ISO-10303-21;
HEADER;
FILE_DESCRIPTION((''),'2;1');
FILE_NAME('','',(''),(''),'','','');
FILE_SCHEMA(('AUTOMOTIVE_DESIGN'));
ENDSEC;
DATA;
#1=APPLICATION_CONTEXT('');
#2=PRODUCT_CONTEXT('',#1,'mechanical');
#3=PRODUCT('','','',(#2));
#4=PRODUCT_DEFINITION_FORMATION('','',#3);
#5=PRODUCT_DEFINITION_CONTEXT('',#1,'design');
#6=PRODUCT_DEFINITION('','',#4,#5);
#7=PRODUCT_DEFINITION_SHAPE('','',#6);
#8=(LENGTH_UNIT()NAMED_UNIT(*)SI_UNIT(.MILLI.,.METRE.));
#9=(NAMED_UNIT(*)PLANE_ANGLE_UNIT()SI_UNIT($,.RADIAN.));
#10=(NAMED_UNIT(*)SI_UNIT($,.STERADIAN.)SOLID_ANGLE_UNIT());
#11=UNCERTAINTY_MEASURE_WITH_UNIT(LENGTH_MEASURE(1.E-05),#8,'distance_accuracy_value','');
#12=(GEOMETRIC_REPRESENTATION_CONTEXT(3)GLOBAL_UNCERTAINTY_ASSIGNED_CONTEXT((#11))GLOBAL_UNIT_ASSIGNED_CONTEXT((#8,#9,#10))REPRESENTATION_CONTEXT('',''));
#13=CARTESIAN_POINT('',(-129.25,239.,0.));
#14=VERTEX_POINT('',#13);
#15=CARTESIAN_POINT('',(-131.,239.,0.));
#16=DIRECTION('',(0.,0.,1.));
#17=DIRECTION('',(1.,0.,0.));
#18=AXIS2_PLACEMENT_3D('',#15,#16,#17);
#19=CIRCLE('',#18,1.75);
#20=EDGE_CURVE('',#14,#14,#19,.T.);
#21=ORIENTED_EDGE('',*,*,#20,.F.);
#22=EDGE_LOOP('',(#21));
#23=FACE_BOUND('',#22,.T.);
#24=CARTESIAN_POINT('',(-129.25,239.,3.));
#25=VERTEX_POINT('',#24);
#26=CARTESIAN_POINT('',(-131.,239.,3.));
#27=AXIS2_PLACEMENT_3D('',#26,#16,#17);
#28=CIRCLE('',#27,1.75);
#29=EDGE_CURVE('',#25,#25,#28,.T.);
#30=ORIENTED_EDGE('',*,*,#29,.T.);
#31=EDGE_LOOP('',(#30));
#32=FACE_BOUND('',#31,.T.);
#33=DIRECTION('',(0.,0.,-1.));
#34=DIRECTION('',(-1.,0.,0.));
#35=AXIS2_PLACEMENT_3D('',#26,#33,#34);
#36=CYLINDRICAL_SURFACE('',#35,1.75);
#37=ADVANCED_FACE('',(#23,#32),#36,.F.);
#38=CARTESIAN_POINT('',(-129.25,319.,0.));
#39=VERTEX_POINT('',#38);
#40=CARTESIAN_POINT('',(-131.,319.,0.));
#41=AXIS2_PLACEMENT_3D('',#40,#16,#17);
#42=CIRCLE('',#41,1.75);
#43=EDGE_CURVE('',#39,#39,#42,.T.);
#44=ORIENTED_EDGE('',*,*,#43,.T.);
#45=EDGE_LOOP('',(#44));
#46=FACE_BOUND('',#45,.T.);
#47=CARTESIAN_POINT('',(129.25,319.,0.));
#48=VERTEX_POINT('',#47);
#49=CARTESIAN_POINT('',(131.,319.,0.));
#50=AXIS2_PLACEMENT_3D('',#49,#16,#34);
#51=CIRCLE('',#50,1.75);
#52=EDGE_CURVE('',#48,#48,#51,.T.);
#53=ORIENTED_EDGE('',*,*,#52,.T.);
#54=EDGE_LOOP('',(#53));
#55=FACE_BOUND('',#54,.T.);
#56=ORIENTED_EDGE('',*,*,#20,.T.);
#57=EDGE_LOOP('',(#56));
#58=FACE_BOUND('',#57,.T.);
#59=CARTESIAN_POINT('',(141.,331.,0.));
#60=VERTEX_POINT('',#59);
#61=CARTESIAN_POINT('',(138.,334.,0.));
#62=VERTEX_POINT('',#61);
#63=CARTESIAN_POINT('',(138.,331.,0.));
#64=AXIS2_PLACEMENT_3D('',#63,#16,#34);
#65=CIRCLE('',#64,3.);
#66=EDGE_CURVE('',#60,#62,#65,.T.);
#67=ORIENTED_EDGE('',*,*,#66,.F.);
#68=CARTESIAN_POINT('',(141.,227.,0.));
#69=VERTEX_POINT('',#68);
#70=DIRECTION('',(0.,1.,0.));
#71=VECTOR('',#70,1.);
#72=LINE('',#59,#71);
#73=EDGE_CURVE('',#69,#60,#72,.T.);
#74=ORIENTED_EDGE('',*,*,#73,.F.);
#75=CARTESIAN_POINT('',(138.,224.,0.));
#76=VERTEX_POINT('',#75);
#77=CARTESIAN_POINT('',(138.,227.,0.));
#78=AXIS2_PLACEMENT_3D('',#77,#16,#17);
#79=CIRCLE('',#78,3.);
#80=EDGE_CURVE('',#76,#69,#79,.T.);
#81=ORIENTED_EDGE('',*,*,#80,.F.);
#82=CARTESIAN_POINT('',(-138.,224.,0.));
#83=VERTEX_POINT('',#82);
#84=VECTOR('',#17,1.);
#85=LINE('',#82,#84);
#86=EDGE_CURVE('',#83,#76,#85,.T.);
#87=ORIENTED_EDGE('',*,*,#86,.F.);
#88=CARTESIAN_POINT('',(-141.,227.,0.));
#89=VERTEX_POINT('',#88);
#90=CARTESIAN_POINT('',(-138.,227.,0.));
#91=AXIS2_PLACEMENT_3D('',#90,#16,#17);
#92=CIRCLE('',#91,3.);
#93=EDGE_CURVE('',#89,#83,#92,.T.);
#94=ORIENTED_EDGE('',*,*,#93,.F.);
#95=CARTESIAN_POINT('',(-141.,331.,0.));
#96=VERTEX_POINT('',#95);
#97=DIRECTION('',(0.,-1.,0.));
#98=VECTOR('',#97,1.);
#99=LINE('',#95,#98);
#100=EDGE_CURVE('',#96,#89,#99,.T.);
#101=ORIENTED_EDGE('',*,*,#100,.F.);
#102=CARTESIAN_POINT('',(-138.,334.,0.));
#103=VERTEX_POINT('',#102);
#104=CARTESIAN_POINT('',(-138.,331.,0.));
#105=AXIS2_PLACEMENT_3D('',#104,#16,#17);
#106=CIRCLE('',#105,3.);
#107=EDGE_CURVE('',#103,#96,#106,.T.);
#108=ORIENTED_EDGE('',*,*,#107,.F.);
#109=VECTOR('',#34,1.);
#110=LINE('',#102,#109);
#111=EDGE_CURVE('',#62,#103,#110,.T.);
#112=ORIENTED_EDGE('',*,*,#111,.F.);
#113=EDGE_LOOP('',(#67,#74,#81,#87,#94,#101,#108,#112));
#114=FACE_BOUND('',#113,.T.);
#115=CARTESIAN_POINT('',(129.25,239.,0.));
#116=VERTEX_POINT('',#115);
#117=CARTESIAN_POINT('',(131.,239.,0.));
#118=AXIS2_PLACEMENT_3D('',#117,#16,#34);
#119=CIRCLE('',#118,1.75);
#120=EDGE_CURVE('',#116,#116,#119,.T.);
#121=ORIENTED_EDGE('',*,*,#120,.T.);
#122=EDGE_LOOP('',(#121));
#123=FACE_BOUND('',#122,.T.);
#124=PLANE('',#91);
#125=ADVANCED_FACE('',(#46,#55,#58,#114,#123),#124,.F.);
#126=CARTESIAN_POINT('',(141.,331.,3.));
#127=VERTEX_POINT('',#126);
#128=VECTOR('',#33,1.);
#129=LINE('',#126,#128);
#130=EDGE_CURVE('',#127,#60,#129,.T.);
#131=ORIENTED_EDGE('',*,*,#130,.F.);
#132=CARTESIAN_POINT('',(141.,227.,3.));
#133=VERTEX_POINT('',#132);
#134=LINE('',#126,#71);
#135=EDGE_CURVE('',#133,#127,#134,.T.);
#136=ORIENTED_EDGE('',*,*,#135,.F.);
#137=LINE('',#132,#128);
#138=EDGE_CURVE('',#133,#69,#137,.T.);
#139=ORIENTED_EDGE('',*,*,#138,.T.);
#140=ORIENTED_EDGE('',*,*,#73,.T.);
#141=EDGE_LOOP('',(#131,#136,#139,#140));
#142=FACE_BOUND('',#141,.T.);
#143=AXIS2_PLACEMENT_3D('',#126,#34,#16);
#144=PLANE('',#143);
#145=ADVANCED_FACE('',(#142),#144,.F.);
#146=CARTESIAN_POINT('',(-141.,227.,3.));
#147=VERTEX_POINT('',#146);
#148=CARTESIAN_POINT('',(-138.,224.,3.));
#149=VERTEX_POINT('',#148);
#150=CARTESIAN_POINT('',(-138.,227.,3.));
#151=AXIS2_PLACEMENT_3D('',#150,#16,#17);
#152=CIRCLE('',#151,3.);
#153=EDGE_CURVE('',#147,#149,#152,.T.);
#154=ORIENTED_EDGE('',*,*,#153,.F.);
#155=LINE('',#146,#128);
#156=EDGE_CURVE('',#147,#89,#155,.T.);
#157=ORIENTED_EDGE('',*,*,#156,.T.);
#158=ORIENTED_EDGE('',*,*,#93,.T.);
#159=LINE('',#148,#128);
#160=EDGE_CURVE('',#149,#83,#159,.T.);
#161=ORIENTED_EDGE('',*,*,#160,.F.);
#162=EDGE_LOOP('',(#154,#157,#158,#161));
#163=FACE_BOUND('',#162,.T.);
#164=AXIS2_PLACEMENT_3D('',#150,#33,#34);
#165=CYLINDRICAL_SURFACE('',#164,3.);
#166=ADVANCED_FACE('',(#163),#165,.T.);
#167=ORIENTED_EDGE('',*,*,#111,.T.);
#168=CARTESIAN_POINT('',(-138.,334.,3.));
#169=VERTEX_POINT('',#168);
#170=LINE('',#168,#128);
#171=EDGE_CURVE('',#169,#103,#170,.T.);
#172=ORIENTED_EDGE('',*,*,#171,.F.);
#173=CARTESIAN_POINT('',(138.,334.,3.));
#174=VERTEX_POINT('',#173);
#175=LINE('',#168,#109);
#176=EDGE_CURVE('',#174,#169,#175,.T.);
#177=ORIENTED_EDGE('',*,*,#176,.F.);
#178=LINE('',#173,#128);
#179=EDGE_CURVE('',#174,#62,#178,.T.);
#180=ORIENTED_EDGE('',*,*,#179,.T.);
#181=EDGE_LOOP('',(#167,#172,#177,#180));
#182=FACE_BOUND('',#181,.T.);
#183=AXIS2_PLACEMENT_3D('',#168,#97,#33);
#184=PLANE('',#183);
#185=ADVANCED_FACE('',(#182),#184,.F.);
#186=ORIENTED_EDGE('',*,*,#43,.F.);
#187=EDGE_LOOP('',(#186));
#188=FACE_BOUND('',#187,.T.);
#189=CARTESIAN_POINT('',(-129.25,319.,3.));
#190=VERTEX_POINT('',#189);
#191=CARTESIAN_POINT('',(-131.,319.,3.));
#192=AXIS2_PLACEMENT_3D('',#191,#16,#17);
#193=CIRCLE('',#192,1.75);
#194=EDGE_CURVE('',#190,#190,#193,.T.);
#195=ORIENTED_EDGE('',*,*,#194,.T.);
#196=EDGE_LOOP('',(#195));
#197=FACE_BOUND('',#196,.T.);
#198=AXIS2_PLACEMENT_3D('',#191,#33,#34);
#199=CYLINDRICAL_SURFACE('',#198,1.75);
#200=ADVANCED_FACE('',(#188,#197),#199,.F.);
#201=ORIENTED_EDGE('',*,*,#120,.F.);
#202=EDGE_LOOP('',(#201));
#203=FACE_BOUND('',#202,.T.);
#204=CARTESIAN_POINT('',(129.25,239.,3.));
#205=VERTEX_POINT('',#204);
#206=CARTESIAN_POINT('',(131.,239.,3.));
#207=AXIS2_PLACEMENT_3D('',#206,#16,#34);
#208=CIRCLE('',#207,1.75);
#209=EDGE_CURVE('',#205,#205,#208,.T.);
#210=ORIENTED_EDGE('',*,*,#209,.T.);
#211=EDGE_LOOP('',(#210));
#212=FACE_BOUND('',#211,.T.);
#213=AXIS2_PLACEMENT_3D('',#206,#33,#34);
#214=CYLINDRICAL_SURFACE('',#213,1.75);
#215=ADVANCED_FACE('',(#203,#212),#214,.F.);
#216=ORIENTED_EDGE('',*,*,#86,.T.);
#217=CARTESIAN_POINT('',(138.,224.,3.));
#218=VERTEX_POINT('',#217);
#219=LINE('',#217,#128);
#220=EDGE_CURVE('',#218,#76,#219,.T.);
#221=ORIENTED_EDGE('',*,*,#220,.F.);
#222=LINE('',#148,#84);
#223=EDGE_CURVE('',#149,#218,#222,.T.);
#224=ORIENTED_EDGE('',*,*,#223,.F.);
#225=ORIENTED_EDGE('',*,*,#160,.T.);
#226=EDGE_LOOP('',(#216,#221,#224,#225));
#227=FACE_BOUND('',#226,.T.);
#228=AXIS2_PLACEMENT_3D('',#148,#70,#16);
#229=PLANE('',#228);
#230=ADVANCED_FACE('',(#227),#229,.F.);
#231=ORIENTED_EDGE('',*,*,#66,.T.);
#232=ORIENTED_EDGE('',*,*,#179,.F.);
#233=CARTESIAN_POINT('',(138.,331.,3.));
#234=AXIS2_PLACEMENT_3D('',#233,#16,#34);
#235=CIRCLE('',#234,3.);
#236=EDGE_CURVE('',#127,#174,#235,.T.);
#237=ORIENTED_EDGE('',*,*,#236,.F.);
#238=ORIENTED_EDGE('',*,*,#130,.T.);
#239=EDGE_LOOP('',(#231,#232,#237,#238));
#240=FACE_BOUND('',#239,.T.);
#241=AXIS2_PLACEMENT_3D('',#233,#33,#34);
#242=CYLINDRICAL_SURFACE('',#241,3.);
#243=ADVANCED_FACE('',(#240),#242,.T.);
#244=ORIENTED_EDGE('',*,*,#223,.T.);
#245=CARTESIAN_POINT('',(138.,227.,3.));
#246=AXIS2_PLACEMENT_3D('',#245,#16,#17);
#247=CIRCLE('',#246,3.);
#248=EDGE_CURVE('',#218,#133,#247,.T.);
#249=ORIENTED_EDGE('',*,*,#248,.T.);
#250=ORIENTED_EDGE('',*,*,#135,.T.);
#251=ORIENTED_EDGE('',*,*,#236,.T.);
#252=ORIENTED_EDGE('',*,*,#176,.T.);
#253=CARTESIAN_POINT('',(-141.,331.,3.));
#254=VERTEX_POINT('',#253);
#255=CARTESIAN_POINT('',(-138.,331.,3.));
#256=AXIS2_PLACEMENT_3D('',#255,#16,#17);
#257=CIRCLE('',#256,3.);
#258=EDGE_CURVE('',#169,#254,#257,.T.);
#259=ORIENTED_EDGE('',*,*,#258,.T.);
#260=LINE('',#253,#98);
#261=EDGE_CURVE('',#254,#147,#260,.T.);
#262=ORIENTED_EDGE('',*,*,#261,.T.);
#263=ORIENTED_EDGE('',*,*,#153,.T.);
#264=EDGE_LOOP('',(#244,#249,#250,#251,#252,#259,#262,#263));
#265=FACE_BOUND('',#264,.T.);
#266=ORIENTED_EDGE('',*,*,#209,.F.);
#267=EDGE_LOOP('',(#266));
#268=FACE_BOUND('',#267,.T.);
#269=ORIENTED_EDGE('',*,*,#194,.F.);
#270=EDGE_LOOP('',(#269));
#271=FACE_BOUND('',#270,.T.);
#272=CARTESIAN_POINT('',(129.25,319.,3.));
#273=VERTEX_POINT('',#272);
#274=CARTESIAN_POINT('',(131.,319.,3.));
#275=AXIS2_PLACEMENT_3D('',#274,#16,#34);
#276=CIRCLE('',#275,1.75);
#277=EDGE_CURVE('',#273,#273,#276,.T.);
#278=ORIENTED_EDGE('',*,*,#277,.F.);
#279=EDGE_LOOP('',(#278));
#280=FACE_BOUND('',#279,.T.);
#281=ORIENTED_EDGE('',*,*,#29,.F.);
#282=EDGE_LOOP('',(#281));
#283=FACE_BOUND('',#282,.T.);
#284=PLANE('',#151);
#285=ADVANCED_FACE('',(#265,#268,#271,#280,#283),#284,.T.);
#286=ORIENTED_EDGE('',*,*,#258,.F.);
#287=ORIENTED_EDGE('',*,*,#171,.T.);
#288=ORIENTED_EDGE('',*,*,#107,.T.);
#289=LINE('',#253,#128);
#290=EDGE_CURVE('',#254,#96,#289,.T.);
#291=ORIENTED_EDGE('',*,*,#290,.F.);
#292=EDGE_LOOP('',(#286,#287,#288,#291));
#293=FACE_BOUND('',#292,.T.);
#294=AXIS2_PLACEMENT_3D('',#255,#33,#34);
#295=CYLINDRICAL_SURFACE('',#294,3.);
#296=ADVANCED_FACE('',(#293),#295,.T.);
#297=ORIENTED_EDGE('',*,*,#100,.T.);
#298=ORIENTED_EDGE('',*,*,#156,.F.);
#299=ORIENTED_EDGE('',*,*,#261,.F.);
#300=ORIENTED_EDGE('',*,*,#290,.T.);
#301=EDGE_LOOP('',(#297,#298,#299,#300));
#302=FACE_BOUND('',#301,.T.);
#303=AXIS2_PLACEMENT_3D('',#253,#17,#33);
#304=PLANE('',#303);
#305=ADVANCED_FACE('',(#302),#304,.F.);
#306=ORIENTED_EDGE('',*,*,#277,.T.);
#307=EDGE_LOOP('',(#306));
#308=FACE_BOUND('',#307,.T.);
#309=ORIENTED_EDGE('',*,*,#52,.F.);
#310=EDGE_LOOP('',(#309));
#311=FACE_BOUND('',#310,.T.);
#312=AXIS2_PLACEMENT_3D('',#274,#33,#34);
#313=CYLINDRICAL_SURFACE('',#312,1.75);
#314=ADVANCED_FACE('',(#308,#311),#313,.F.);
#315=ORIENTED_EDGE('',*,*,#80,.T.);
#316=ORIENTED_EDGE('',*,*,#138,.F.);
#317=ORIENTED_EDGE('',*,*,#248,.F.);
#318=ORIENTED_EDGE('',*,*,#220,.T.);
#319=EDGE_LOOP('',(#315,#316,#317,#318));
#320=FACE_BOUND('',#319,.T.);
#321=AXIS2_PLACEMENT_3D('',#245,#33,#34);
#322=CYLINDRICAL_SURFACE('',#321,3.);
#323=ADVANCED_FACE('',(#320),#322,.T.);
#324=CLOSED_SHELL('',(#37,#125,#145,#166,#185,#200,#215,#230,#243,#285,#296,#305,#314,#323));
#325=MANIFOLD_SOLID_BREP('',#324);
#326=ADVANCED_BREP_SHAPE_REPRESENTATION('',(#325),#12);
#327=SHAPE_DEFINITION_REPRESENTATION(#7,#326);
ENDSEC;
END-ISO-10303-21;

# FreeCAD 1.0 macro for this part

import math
import FreeCAD as App
import Part
import Sketcher

V = App.Vector
Q = App.Units.Quantity

doc = App.newDocument("Part")
body = doc.addObject("PartDesign::Body", "Body")

# Sketch on XY plane
sketch1 = doc.addObject("Sketcher::SketchObject", "Sketch")
body.addObject(sketch1)
sketch1.AttachmentSupport = (doc.XY_Plane, [""])
sketch1.MapMode = "FlatFace"
sketch1.addGeometry([
    Part.LineSegment(V(138, 334, 0), V(-138, 334, 0)),  # 0
    Part.ArcOfCircle(Part.Circle(V(-138, 331, 0), V(0, 0, 1), 3), math.radians(90), math.radians(180)),  # 1
    Part.LineSegment(V(-141, 331, 0), V(-141, 227, 0)),  # 2
    Part.ArcOfCircle(Part.Circle(V(-138, 227, 0), V(0, 0, 1), 3), math.radians(180), math.radians(270)),  # 3
    Part.LineSegment(V(-138, 224, 0), V(138, 224, 0)),  # 4
    Part.ArcOfCircle(Part.Circle(V(138, 227, 0), V(0, 0, 1), 3), math.radians(-90), math.radians(0)),  # 5
    Part.LineSegment(V(141, 227, 0), V(141, 331, 0)),  # 6
    Part.ArcOfCircle(Part.Circle(V(138, 331, 0), V(0, 0, 1), 3), math.radians(0), math.radians(90)),  # 7
    Part.Circle(V(131, 239, 0), V(0, 0, 1), 1.75),  # 8
    Part.Circle(V(-131, 239, 0), V(0, 0, 1), 1.75),  # 9
    Part.Circle(V(131, 319, 0), V(0, 0, 1), 1.75),  # 10
    Part.Circle(V(-131, 319, 0), V(0, 0, 1), 1.75),  # 11
], False)
sketch1.addConstraint([
    Sketcher.Constraint("Tangent", 0, 2, 1, 1),
    Sketcher.Constraint("Tangent", 1, 2, 2, 1),
    Sketcher.Constraint("Tangent", 2, 2, 3, 1),
    Sketcher.Constraint("Tangent", 3, 2, 4, 1),
    Sketcher.Constraint("Tangent", 4, 2, 5, 1),
    Sketcher.Constraint("Tangent", 5, 2, 6, 1),
    Sketcher.Constraint("Tangent", 6, 2, 7, 1),
    Sketcher.Constraint("Tangent", 7, 2, 0, 1),
    Sketcher.Constraint("Horizontal", 0),
    Sketcher.Constraint("Vertical", 2),
    Sketcher.Constraint("Horizontal", 4),
    Sketcher.Constraint("Vertical", 6),
    Sketcher.Constraint("Equal", 1, 3),
    Sketcher.Constraint("Equal", 3, 5),
    Sketcher.Constraint("Equal", 5, 7),
    Sketcher.Constraint("Equal", 8, 9),
    Sketcher.Constraint("Equal", 9, 10),
    Sketcher.Constraint("Equal", 10, 11),
    Sketcher.Constraint("Symmetric", 8, 3, 9, 3, -2),
    Sketcher.Constraint("Symmetric", 10, 3, 11, 3, -2),
    Sketcher.Constraint("Vertical", 8, 3, 10, 3),
    Sketcher.Constraint("Radius", 1, Q("3 mm")),
    Sketcher.Constraint("Diameter", 8, Q("3.5 mm")),
    Sketcher.Constraint("DistanceX", 0, 2, 0, 1, Q("276 mm")),
    Sketcher.Constraint("DistanceY", 2, 2, 2, 1, Q("104 mm")),
    Sketcher.Constraint("DistanceX", 1, 3, -1, 1, Q("138 mm")),
    Sketcher.Constraint("DistanceY", -1, 1, 1, 3, Q("331 mm")),
    Sketcher.Constraint("DistanceX", -1, 1, 8, 3, Q("131 mm")),
    Sketcher.Constraint("DistanceY", -1, 1, 8, 3, Q("239 mm")),
    Sketcher.Constraint("DistanceY", -1, 1, 10, 3, Q("319 mm")),
])
pad1 = doc.addObject("PartDesign::Pad", "Pad")
body.addObject(pad1)
pad1.Profile = sketch1
pad1.Length = 3

doc.recompute()
